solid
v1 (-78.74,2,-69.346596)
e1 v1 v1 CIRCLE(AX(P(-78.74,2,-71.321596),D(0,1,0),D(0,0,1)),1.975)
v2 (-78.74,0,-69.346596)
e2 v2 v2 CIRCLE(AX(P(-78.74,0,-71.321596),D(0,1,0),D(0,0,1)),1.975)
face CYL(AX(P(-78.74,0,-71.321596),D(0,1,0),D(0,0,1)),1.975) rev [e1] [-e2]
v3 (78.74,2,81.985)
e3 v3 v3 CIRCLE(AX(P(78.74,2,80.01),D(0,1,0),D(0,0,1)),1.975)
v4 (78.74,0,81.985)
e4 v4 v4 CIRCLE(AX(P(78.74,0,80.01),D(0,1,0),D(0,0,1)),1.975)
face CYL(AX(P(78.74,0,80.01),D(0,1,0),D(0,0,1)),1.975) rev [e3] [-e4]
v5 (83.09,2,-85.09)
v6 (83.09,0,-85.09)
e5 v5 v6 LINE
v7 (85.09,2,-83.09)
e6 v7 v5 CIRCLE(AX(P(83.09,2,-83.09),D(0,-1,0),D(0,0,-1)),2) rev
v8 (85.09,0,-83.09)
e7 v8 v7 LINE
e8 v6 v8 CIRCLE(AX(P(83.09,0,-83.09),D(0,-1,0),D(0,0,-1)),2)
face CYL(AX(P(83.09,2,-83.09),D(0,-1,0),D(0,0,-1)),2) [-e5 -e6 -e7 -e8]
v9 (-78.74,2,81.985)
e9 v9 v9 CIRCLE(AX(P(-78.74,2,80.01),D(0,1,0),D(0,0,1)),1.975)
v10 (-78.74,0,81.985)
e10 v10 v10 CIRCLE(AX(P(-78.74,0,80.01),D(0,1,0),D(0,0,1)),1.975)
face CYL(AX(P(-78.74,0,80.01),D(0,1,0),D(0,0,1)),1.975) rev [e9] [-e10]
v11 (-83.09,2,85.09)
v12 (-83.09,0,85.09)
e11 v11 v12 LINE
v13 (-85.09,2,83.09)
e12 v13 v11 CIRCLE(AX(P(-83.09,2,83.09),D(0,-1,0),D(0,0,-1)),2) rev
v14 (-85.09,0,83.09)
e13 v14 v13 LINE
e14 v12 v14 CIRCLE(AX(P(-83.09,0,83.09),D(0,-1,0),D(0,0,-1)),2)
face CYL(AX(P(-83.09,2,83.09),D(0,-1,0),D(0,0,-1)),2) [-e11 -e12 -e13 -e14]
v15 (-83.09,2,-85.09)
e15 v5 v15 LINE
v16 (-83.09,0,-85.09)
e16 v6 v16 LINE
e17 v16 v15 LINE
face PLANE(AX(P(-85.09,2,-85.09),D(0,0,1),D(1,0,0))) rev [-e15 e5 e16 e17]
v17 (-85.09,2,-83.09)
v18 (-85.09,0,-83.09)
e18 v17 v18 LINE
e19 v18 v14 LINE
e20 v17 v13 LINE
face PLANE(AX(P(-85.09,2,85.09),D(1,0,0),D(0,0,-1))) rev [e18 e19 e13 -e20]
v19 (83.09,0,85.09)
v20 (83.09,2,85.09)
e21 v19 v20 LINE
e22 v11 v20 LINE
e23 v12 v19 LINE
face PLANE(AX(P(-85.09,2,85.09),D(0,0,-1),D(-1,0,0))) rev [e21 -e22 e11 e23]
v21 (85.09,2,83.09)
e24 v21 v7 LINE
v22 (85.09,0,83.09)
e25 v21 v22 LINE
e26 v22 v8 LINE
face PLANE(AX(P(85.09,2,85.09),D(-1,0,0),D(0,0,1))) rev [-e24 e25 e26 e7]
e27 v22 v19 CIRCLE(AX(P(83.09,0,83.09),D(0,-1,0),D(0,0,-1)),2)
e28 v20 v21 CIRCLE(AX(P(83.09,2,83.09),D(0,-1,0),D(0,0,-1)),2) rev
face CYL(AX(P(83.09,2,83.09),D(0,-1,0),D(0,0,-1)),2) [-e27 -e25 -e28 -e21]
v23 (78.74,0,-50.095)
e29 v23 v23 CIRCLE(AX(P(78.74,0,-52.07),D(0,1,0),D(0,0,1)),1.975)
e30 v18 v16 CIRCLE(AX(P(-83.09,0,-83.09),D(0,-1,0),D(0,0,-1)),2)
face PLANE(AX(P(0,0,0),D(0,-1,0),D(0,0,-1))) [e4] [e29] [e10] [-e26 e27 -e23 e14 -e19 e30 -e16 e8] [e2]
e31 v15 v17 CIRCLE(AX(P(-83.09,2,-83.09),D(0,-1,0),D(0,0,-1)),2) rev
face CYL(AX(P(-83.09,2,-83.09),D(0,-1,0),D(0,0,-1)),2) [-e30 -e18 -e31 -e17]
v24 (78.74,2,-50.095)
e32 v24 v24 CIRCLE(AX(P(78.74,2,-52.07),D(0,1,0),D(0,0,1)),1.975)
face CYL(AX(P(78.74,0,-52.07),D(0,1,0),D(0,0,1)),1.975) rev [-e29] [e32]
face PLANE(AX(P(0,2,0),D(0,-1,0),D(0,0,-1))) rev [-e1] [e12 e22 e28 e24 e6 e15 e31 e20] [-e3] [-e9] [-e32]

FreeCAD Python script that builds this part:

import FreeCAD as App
import Part
import Sketcher
Q = App.Units.Quantity


def edges_at(feature, points):
    """Names of the edges that pass closest to the given points."""
    edges = feature.Shape.Edges
    near = lambda p: min(range(len(edges)), key=lambda i: edges[i].distToShape(Part.Vertex(*p))[0])
    return sorted({f"Edge{near(p) + 1}" for p in points})

doc = App.newDocument("Part")
params = doc.addObject("Spreadsheet::Sheet", "Params")
for row, (alias, value) in enumerate([
    ("sketch1_width", "170.18 mm"),
    ("pad1_length", "2 mm"),
    ("fillet_radius", "2 mm"),
    ("sketch2_diameter", "3.95 mm"),
], start=1):
    params.set(f"A{row}", alias)
    params.set(f"B{row}", "=" + value)
    params.setAlias(f"B{row}", alias)

body = doc.addObject("PartDesign::Body", "Body")

sketch1 = body.newObject("Sketcher::SketchObject", "Sketch")
sketch1.AttachmentSupport = (doc.getObject("XZ_Plane"), [""])
sketch1.MapMode = "FlatFace"
sketch1.addGeometry([
    Part.LineSegment(App.Vector(-85.09, -85.09, 0), App.Vector(-85.09, 85.09, 0)),
    Part.LineSegment(App.Vector(-85.09, 85.09, 0), App.Vector(85.09, 85.09, 0)),
    Part.LineSegment(App.Vector(85.09, 85.09, 0), App.Vector(85.09, -85.09, 0)),
    Part.LineSegment(App.Vector(85.09, -85.09, 0), App.Vector(-85.09, -85.09, 0)),
], False)
sketch1.addConstraint([
    Sketcher.Constraint("Coincident", 0, 2, 1, 1),
    Sketcher.Constraint("Coincident", 1, 2, 2, 1),
    Sketcher.Constraint("Coincident", 2, 2, 3, 1),
    Sketcher.Constraint("Coincident", 3, 2, 0, 1),
    Sketcher.Constraint("Vertical", 0),
    Sketcher.Constraint("Horizontal", 1),
    Sketcher.Constraint("Vertical", 2),
    Sketcher.Constraint("Horizontal", 3),
    Sketcher.Constraint("Symmetric", 0, 2, 2, 2, -1, 1),
    Sketcher.Constraint("Equal", 3, 0),
    Sketcher.Constraint("DistanceX", 1, 1, 1, 2, Q("170.18 mm")),
])
sketch1.setExpression("Constraints[10]", "Params.sketch1_width")
pad1 = body.newObject("PartDesign::Pad", "Pad")
pad1.Profile = sketch1
pad1.setExpression("Length", "Params.pad1_length")
pad1.Reversed = True
doc.recompute()

fillet = body.newObject("PartDesign::Fillet", "Fillet")
fillet.Base = (pad1, edges_at(pad1, [
    (85.09, 1, 85.09),
    (-85.09, 1, 85.09),
    (-85.09, 1, -85.09),
    (85.09, 1, -85.09),
]))
fillet.setExpression("Radius", "Params.fillet_radius")

sketch2 = body.newObject("Sketcher::SketchObject", "Sketch001")
sketch2.AttachmentSupport = (doc.getObject("XZ_Plane"), [""])
sketch2.MapMode = "FlatFace"
sketch2.AttachmentOffset = App.Placement(App.Vector(0, 0, -2), App.Rotation())
sketch2.addGeometry([
    Part.Circle(App.Vector(-78.74, -71.321596, 0), App.Vector(0, 0, 1), 1.975),
    Part.Circle(App.Vector(78.74, -52.07, 0), App.Vector(0, 0, 1), 1.975),
    Part.Circle(App.Vector(78.74, 80.01, 0), App.Vector(0, 0, 1), 1.975),
    Part.Circle(App.Vector(-78.74, 80.01, 0), App.Vector(0, 0, 1), 1.975),
], False)
sketch2.addConstraint([
    Sketcher.Constraint("Equal", 0, 1),
    Sketcher.Constraint("Equal", 1, 2),
    Sketcher.Constraint("Equal", 2, 3),
    Sketcher.Constraint("Symmetric", 2, 3, 3, 3, -2),
    Sketcher.Constraint("Vertical", 1, 3, 2, 3),
    Sketcher.Constraint("Vertical", 0, 3, 3, 3),
    Sketcher.Constraint("Diameter", 0, Q("3.95 mm")),
    Sketcher.Constraint("DistanceX", 0, 3, -1, 1, Q("78.74 mm")),
    Sketcher.Constraint("DistanceY", 1, 3, -1, 1, Q("52.07 mm")),
    Sketcher.Constraint("DistanceY", -1, 1, 2, 3, Q("80.01 mm")),
    Sketcher.Constraint("DistanceY", 0, 3, -1, 1, Q("71.321596 mm")),
])
sketch2.setExpression("Constraints[6]", "Params.sketch2_diameter")
pocket1 = body.newObject("PartDesign::Pocket", "Pocket")
pocket1.Profile = sketch2
pocket1.Type = "ThroughAll"
pocket1.Reversed = True

doc.recompute()
